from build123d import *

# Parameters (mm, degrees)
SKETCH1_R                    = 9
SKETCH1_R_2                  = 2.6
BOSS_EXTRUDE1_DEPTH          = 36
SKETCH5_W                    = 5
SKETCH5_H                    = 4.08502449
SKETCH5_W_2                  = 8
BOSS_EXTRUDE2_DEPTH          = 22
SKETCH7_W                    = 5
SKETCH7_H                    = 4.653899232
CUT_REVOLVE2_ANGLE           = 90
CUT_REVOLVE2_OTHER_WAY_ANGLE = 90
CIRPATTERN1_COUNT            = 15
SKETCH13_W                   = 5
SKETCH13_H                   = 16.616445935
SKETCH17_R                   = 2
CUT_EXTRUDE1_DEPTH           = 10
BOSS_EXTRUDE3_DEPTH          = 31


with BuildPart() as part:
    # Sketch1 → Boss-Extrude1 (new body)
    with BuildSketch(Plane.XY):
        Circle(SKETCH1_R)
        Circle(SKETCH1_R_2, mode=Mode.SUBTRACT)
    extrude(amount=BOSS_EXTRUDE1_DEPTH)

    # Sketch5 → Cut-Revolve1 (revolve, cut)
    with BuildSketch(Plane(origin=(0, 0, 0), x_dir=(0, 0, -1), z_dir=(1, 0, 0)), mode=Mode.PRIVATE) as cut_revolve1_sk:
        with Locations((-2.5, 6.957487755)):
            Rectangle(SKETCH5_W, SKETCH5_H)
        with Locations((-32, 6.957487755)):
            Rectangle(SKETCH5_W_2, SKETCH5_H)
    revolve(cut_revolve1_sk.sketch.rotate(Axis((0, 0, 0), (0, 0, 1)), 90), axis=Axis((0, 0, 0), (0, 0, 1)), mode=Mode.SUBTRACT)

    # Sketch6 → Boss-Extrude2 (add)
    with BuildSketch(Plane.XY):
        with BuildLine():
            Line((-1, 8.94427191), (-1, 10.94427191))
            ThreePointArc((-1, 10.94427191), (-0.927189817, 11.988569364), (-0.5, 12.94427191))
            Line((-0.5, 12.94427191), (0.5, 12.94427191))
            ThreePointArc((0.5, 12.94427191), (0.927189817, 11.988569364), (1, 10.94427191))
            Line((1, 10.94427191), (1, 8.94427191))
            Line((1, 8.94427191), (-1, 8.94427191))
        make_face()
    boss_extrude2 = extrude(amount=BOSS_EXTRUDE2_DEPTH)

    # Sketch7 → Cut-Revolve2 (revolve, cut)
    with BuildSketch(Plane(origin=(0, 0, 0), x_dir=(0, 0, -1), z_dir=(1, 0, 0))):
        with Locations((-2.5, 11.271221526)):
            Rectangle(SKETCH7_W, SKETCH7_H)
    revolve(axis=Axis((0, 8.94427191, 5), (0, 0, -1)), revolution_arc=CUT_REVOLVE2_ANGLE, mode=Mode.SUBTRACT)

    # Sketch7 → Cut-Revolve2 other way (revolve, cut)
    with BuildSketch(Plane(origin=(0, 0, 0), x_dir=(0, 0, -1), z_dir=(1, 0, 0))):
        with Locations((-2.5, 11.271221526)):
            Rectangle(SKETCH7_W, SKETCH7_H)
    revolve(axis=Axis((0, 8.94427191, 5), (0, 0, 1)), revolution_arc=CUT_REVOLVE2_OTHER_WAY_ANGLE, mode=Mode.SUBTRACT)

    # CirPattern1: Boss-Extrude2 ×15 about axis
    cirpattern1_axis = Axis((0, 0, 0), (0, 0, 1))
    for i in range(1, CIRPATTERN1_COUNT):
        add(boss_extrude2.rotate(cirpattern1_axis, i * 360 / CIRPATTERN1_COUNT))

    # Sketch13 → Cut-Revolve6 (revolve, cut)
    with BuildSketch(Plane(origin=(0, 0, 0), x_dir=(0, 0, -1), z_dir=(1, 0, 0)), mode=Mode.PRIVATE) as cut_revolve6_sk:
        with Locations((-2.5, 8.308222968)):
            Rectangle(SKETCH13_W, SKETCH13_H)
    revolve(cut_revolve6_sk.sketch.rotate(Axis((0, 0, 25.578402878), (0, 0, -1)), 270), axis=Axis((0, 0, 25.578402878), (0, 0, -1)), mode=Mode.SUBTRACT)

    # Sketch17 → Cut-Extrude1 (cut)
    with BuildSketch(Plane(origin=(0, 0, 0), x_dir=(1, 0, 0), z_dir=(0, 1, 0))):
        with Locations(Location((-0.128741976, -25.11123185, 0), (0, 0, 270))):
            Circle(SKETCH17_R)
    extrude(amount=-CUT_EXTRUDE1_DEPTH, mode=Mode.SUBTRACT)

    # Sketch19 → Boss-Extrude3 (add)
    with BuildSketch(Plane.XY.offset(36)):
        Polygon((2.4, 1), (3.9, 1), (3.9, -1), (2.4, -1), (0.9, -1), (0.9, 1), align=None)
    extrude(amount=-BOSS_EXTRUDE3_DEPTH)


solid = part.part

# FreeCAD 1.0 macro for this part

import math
import FreeCAD as App
import Part
import Sketcher

V = App.Vector


def add_polygon(sketch, points):
    """Adds a closed chain of lines whose ends are joined by coincident constraints."""
    first, n = sketch.GeometryCount, len(points)
    for a, b in zip(points, points[1:] + points[:1]):
        sketch.addGeometry(Part.LineSegment(App.Vector(*a, 0), App.Vector(*b, 0)), False)
    for i in range(n):
        sketch.addConstraint(Sketcher.Constraint("Coincident", first + i, 2, first + (i + 1) % n, 1))

doc = App.newDocument("Part")
params = doc.addObject("Spreadsheet::Sheet", "Params")
for row, (alias, value) in enumerate([
    ("sketch1_diameter", "18 mm"),
    ("sketch1_diameter2", "5.2 mm"),
    ("pad1_length", "36 mm"),
    ("sketch2_height", "5 mm"),
    ("sketch2_height2", "8 mm"),
    ("groove_angle", "360 deg"),
    ("sketch3_radius", "3 mm"),
    ("sketch3_width", "2 mm"),
    ("sketch3_width2", "1 mm"),
    ("pad2_length", "22 mm"),
    ("sketch4_height", "5 mm"),
    ("groove2_angle", "90 deg"),
    ("sketch5_height", "5 mm"),
    ("groove3_angle", "90 deg"),
    ("sketch6_height", "5 mm"),
    ("groove4_angle", "360 deg"),
    ("sketch7_diameter", "4 mm"),
    ("pocket1_length", "10 mm"),
    ("sketch8_width", "3 mm"),
    ("sketch8_height", "2 mm"),
    ("pad3_length", "31 mm"),
], start=1):
    params.set(f"A{row}", alias)
    params.set(f"B{row}", "=" + value)
    params.setAlias(f"B{row}", alias)

body = doc.addObject("PartDesign::Body", "Body")

sketch1 = body.newObject("Sketcher::SketchObject", "Sketch")
sketch1.AttachmentSupport = (doc.getObject("XY_Plane"), [""])
sketch1.MapMode = "FlatFace"
sketch1.addGeometry([
    Part.Circle(V(0, 0, 0), V(0, 0, 1), 9),
    Part.Circle(V(0, 0, 0), V(0, 0, 1), 2.6),
], False)
sketch1.addConstraint([
    Sketcher.Constraint("Coincident", 0, 3, -1, 1),
    Sketcher.Constraint("Coincident", 1, 3, -1, 1),
    Sketcher.Constraint("Diameter", 0, 18.0),
    Sketcher.Constraint("Diameter", 1, 5.2),
])
sketch1.setExpression("Constraints[2]", "Params.sketch1_diameter")
sketch1.setExpression("Constraints[3]", "Params.sketch1_diameter2")
pad1 = body.newObject("PartDesign::Pad", "Pad")
pad1.Profile = sketch1
pad1.setExpression("Length", "Params.pad1_length")

sketch2 = body.newObject("Sketcher::SketchObject", "Sketch001")
sketch2.AttachmentSupport = (doc.getObject("YZ_Plane"), [""])
sketch2.MapMode = "FlatFace"
add_polygon(sketch2, [(9, 5), (4.914976, 5), (4.914976, 0), (9, 0)])
add_polygon(sketch2, [(9, 36), (4.914976, 36), (4.914976, 28), (9, 28)])
sketch2.addConstraint([
    Sketcher.Constraint("Horizontal", 0),
    Sketcher.Constraint("Vertical", 1),
    Sketcher.Constraint("Horizontal", 2),
    Sketcher.Constraint("Vertical", 3),
    Sketcher.Constraint("Horizontal", 4),
    Sketcher.Constraint("Vertical", 5),
    Sketcher.Constraint("Horizontal", 6),
    Sketcher.Constraint("Vertical", 7),
    Sketcher.Constraint("PointOnObject", 1, 2, -1),
    Sketcher.Constraint("Vertical", 1, 2, 4, 2),
    Sketcher.Constraint("Vertical", 3, 2, 6, 2),
    Sketcher.Constraint("DistanceY", 1, 2, 1, 1, 5.0),
    Sketcher.Constraint("DistanceY", 5, 2, 5, 1, 8.0),
    Sketcher.Constraint("DistanceX", -1, 1, 2, 2, 9.0),
    Sketcher.Constraint("DistanceY", -1, 1, 4, 2, 36.0),
    Sketcher.Constraint("DistanceX", 0, 2, 0, 1, 4.085024),
])
sketch2.setExpression("Constraints[19]", "Params.sketch2_height")
sketch2.setExpression("Constraints[20]", "Params.sketch2_height2")
groove = body.newObject("PartDesign::Groove", "Groove")
groove.Profile = sketch2
groove.ReferenceAxis = (sketch2, ["V_Axis"])
groove.setExpression("Angle", "Params.groove_angle")

sketch3 = body.newObject("Sketcher::SketchObject", "Sketch002")
sketch3.AttachmentSupport = (doc.getObject("XY_Plane"), [""])
sketch3.MapMode = "FlatFace"
sketch3.addGeometry([
    Part.LineSegment(V(-1, 10.944272, 0), V(-1, 8.944272, 0)),
    Part.LineSegment(V(-1, 8.944272, 0), V(1, 8.944272, 0)),
    Part.LineSegment(V(1, 8.944272, 0), V(1, 10.944272, 0)),
    Part.ArcOfCircle(Part.Circle(V(-1.983238, 11.260962, 0), V(0, 0, 1), 3), math.radians(-6.059635), math.radians(34.132122)),
    Part.LineSegment(V(0.5, 12.944272, 0), V(-0.5, 12.944272, 0)),
    Part.ArcOfCircle(Part.Circle(V(1.983238, 11.260962, 0), V(0, 0, 1), 3), math.radians(145.867878), math.radians(186.059635)),
], False)
sketch3.addConstraint([
    Sketcher.Constraint("Coincident", 0, 2, 1, 1),
    Sketcher.Constraint("Coincident", 1, 2, 2, 1),
    Sketcher.Constraint("Coincident", 2, 2, 3, 1),
    Sketcher.Constraint("Coincident", 3, 2, 4, 1),
    Sketcher.Constraint("Coincident", 4, 2, 5, 1),
    Sketcher.Constraint("Coincident", 5, 2, 0, 1),
    Sketcher.Constraint("Vertical", 0),
    Sketcher.Constraint("Horizontal", 1),
    Sketcher.Constraint("Vertical", 2),
    Sketcher.Constraint("Horizontal", 4),
    Sketcher.Constraint("Equal", 3, 5),
    Sketcher.Constraint("Symmetric", 3, 3, 5, 3, -2),
    Sketcher.Constraint("Horizontal", 2, 2, 5, 2),
    Sketcher.Constraint("Equal", 1, 0),
    Sketcher.Constraint("Radius", 3, 3.0),
    Sketcher.Constraint("DistanceX", 1, 1, 1, 2, 2.0),
    Sketcher.Constraint("DistanceX", 4, 2, 4, 1, 1.0),
    Sketcher.Constraint("DistanceY", 2, 2, 3, 2, 2.0),
    Sketcher.Constraint("DistanceY", -1, 1, 0, 2, 8.944272),
])
sketch3.setExpression("Constraints[14]", "Params.sketch3_radius")
sketch3.setExpression("Constraints[15]", "Params.sketch3_width")
sketch3.setExpression("Constraints[16]", "Params.sketch3_width2")
pad2 = body.newObject("PartDesign::Pad", "Pad001")
pad2.Profile = sketch3
pad2.setExpression("Length", "Params.pad2_length")

sketch4 = body.newObject("Sketcher::SketchObject", "Sketch003")
sketch4.AttachmentSupport = (doc.getObject("YZ_Plane"), [""])
sketch4.MapMode = "FlatFace"
add_polygon(sketch4, [(13.598171, 5), (8.944272, 5), (8.944272, 0), (13.598171, 0)])
sketch4.addGeometry(Part.LineSegment(V(8.944272, 5, 0), V(8.944272, 0, 0)), True)
sketch4.addConstraint([
    Sketcher.Constraint("Horizontal", 0),
    Sketcher.Constraint("Vertical", 1),
    Sketcher.Constraint("Horizontal", 2),
    Sketcher.Constraint("Vertical", 3),
    Sketcher.Constraint("Vertical", 4),
    Sketcher.Constraint("Coincident", 4, 1, 0, 2),
    Sketcher.Constraint("PointOnObject", 1, 2, -1),
    Sketcher.Constraint("PointOnObject", 4, 2, -1),
    Sketcher.Constraint("DistanceY", 1, 2, 1, 1, 5.0),
    Sketcher.Constraint("DistanceX", 0, 2, 0, 1, 4.653899),
    Sketcher.Constraint("DistanceX", -1, 1, 0, 2, 8.944272),
])
sketch4.setExpression("Constraints[12]", "Params.sketch4_height")
groove2 = body.newObject("PartDesign::Groove", "Groove001")
groove2.Profile = sketch4
groove2.ReferenceAxis = (sketch4, ["Axis0"])
groove2.setExpression("Angle", "Params.groove2_angle")

sketch5 = body.newObject("Sketcher::SketchObject", "Sketch004")
sketch5.AttachmentSupport = (doc.getObject("YZ_Plane"), [""])
sketch5.MapMode = "FlatFace"
add_polygon(sketch5, [(13.598171, 5), (8.944272, 5), (8.944272, 0), (13.598171, 0)])
sketch5.addGeometry(Part.LineSegment(V(8.944272, 0, 0), V(8.944272, 5, 0)), True)
sketch5.addConstraint([
    Sketcher.Constraint("Horizontal", 0),
    Sketcher.Constraint("Vertical", 1),
    Sketcher.Constraint("Horizontal", 2),
    Sketcher.Constraint("Vertical", 3),
    Sketcher.Constraint("Vertical", 4),
    Sketcher.Constraint("Coincident", 4, 1, 1, 2),
    Sketcher.Constraint("PointOnObject", 1, 2, -1),
    Sketcher.Constraint("Horizontal", 3, 2, 4, 2),
    Sketcher.Constraint("DistanceY", 1, 2, 1, 1, 5.0),
    Sketcher.Constraint("DistanceX", 0, 2, 0, 1, 4.653899),
    Sketcher.Constraint("DistanceX", -1, 1, 0, 2, 8.944272),
])
sketch5.setExpression("Constraints[12]", "Params.sketch5_height")
groove3 = body.newObject("PartDesign::Groove", "Groove002")
groove3.Profile = sketch5
groove3.ReferenceAxis = (sketch5, ["Axis0"])
groove3.setExpression("Angle", "Params.groove3_angle")
doc.recompute()

polarpattern = body.newObject("PartDesign::PolarPattern", "PolarPattern")
polarpattern.Originals = [pad2]
polarpattern.Axis = (doc.getObject("Z_Axis"), [""])
polarpattern.Angle = 360
polarpattern.Occurrences = 15
body.Tip = polarpattern

sketch6 = body.newObject("Sketcher::SketchObject", "Sketch005")
sketch6.AttachmentSupport = (doc.getObject("YZ_Plane"), [""])
sketch6.MapMode = "FlatFace"
add_polygon(sketch6, [(16.616446, 5), (0, 5), (0, 0), (16.616446, 0)])
sketch6.addConstraint([
    Sketcher.Constraint("Horizontal", 0),
    Sketcher.Constraint("Vertical", 1),
    Sketcher.Constraint("Horizontal", 2),
    Sketcher.Constraint("Vertical", 3),
    Sketcher.Constraint("Coincident", 1, 2, -1, 1),
    Sketcher.Constraint("DistanceY", 1, 2, 1, 1, 5.0),
    Sketcher.Constraint("DistanceX", 0, 2, 0, 1, 16.616446),
])
sketch6.setExpression("Constraints[9]", "Params.sketch6_height")
groove4 = body.newObject("PartDesign::Groove", "Groove003")
groove4.Profile = sketch6
groove4.ReferenceAxis = (sketch6, ["V_Axis"])
groove4.setExpression("Angle", "Params.groove4_angle")

sketch7 = body.newObject("Sketcher::SketchObject", "Sketch006")
sketch7.AttachmentSupport = (doc.getObject("XZ_Plane"), [""])
sketch7.MapMode = "FlatFace"
sketch7.addGeometry(Part.Circle(V(-0.128742, 25.111232, 0), V(0, 0, 1), 2), False)
sketch7.addConstraint([
    Sketcher.Constraint("Diameter", 0, 4.0),
    Sketcher.Constraint("DistanceX", 0, 3, -1, 1, 0.128742),
    Sketcher.Constraint("DistanceY", -1, 1, 0, 3, 25.111232),
])
sketch7.setExpression("Constraints[0]", "Params.sketch7_diameter")
pocket1 = body.newObject("PartDesign::Pocket", "Pocket")
pocket1.Profile = sketch7
pocket1.setExpression("Length", "Params.pocket1_length")
pocket1.Reversed = True

sketch8 = body.newObject("Sketcher::SketchObject", "Sketch007")
sketch8.AttachmentSupport = (doc.getObject("XY_Plane"), [""])
sketch8.MapMode = "FlatFace"
sketch8.AttachmentOffset = App.Placement(V(0, 0, 36), App.Rotation())
add_polygon(sketch8, [(3.9, 1), (0.9, 1), (0.9, -1), (3.9, -1)])
sketch8.addConstraint([
    Sketcher.Constraint("Horizontal", 0),
    Sketcher.Constraint("Vertical", 1),
    Sketcher.Constraint("Horizontal", 2),
    Sketcher.Constraint("Vertical", 3),
    Sketcher.Constraint("DistanceX", 0, 2, 0, 1, 3.0),
    Sketcher.Constraint("DistanceY", 1, 2, 1, 1, 2.0),
    Sketcher.Constraint("DistanceY", -1, 1, 0, 2, 1.0),
    Sketcher.Constraint("DistanceX", -1, 1, 0, 2, 0.9),
])
sketch8.setExpression("Constraints[8]", "Params.sketch8_width")
sketch8.setExpression("Constraints[9]", "Params.sketch8_height")
pad3 = body.newObject("PartDesign::Pad", "Pad002")
pad3.Profile = sketch8
pad3.setExpression("Length", "Params.pad3_length")
pad3.Reversed = True

doc.recompute()
